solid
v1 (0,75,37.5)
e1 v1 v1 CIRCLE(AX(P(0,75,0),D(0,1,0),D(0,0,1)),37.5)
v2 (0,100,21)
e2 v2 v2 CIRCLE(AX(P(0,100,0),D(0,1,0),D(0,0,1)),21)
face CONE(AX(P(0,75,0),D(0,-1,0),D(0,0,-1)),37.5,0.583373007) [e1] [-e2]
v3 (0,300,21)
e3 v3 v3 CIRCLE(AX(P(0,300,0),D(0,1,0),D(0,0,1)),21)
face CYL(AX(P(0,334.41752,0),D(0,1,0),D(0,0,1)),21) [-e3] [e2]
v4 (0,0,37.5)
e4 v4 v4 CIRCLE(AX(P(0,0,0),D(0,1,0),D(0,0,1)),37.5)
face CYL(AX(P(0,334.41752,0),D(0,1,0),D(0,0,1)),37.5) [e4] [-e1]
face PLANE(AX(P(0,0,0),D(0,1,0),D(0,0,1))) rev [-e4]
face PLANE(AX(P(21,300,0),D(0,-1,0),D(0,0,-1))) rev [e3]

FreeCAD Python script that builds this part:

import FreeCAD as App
import Part
import Sketcher
from FreeCAD import Vector


def add_polygon(sketch, points):
    """Adds a closed chain of lines whose ends are joined by coincident constraints."""
    first, n = sketch.GeometryCount, len(points)
    for a, b in zip(points, points[1:] + points[:1]):
        sketch.addGeometry(Part.LineSegment(App.Vector(*a, 0), App.Vector(*b, 0)), False)
    for i in range(n):
        sketch.addConstraint(Sketcher.Constraint("Coincident", first + i, 2, first + (i + 1) % n, 1))

doc = App.newDocument("Part")
body = doc.addObject("PartDesign::Body", "Body")

# Sketch on XY plane
sketch1 = body.newObject("Sketcher::SketchObject", "Sketch")
sketch1.AttachmentSupport = (doc.getObject("XY_Plane"), [""])
sketch1.MapMode = "FlatFace"
add_polygon(sketch1, [(0, 0), (38, 0), (38, 75), (21, 100), (21, 300), (0, 300)])  # lines 0-5
sketch1.addConstraint([
    Sketcher.Constraint("Horizontal", 0),
    Sketcher.Constraint("Vertical", 1),
    Sketcher.Constraint("Vertical", 3),
    Sketcher.Constraint("Horizontal", 4),
    Sketcher.Constraint("Vertical", 5),
    Sketcher.Constraint("Coincident", 5, 2, -1, 1),
    Sketcher.Constraint("DistanceX", 4, 2, 4, 1, 21.0),
    Sketcher.Constraint("DistanceY", 1, 1, 1, 2, 75.0),
    Sketcher.Constraint("DistanceY", 3, 1, 3, 2, 200.0),
    Sketcher.Constraint("DistanceY", 5, 2, 5, 1, 300.0),
    Sketcher.Constraint("DistanceX", 0, 1, 0, 2, 37.5),
])
revolution = body.newObject("PartDesign::Revolution", "Revolution")
revolution.Profile = sketch1
revolution.ReferenceAxis = (sketch1, ["V_Axis"])
revolution.Angle = 360

doc.recompute()
